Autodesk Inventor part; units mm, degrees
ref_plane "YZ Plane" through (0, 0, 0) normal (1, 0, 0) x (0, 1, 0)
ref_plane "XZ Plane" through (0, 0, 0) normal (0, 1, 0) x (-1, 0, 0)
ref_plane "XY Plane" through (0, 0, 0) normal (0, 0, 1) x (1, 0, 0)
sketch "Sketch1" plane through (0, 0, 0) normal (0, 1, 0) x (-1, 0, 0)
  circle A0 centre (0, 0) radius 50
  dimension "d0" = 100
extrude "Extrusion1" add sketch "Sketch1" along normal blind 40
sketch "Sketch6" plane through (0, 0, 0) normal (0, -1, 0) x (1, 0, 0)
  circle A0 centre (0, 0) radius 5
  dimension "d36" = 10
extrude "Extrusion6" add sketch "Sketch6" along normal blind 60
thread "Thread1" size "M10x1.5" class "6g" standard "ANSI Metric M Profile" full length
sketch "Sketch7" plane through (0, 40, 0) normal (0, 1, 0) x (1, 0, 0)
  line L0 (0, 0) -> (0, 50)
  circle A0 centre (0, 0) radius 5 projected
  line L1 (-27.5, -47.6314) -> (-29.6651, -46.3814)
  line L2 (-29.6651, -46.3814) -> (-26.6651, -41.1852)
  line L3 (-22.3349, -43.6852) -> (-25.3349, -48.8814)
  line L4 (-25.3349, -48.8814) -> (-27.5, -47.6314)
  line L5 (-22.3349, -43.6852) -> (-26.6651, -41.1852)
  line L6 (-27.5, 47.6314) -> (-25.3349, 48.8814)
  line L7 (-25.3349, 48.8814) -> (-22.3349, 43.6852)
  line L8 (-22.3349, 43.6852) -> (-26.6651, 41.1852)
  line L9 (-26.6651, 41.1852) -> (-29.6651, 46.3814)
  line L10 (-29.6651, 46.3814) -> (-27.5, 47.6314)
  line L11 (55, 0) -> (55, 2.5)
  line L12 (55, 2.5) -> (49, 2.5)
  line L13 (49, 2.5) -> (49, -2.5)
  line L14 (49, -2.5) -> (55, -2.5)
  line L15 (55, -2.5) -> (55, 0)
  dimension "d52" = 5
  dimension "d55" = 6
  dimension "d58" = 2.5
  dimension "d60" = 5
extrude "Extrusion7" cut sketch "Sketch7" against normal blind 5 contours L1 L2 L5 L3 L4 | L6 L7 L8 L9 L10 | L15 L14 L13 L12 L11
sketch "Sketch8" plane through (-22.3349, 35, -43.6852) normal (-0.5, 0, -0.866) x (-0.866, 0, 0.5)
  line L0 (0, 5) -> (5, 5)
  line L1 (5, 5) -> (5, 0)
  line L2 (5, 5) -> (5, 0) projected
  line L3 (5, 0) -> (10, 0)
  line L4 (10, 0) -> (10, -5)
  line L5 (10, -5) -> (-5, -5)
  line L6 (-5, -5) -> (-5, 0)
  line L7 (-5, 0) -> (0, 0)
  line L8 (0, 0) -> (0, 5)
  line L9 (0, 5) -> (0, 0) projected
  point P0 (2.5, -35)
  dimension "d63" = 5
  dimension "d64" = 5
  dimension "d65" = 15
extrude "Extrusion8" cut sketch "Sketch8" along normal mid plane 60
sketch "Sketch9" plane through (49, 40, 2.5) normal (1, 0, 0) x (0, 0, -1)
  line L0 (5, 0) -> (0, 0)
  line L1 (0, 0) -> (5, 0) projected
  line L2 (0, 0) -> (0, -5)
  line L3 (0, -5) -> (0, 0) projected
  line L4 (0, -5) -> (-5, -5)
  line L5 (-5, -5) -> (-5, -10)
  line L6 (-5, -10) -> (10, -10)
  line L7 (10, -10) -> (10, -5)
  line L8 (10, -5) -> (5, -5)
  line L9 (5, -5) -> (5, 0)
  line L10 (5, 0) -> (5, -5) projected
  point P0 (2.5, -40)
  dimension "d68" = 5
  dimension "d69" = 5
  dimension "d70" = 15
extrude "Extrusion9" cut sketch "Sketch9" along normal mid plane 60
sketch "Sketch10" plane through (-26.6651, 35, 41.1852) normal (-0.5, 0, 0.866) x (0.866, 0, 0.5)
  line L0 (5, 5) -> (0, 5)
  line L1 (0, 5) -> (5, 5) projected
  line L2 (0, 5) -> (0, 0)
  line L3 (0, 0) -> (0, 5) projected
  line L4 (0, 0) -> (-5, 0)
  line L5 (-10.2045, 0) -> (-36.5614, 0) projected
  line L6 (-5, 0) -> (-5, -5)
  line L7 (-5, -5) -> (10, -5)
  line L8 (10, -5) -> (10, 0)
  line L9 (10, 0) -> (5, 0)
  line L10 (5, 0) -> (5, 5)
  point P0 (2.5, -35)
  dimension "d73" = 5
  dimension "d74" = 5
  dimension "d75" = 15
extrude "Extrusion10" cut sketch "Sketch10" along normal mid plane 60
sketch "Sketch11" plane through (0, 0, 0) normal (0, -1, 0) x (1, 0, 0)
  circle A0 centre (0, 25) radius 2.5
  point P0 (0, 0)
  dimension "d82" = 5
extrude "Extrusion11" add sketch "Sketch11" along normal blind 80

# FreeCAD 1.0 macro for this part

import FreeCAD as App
import Part
import Sketcher
Q = App.Units.Quantity

doc = App.newDocument("Part")
params = doc.addObject("Spreadsheet::Sheet", "Params")
for row, (alias, value) in enumerate([
    ("sketch1_diameter", "100 mm"),
    ("pad1_length", "40 mm"),
    ("sketch2_diameter", "10 mm"),
    ("pad2_length", "60 mm"),
    ("sketch3_width", "6 mm"),
    ("sketch3_height", "5 mm"),
    ("sketch3_length", "5 mm"),
    ("sketch3_length2", "6 mm"),
    ("pocket1_length", "5 mm"),
    ("sketch4_width", "5 mm"),
    ("pocket2_length", "60 mm"),
    ("sketch5_width", "5 mm"),
    ("pocket3_length", "60 mm"),
    ("sketch6_width", "5 mm"),
    ("pocket4_length", "60 mm"),
    ("sketch7_diameter", "5 mm"),
    ("pad3_length", "80 mm"),
], start=1):
    params.set(f"A{row}", alias)
    params.set(f"B{row}", "=" + value)
    params.setAlias(f"B{row}", alias)

body = doc.addObject("PartDesign::Body", "Body")

sketch1 = body.newObject("Sketcher::SketchObject", "Sketch")
sketch1.AttachmentSupport = (doc.getObject("XZ_Plane"), [""])
sketch1.MapMode = "FlatFace"
sketch1.addGeometry(Part.Circle(App.Vector(0, 0, 0), App.Vector(0, 0, 1), 50), False)
sketch1.addConstraint(Sketcher.Constraint("Coincident", 0, 3, -1, 1))
sketch1.addConstraint(Sketcher.Constraint("Diameter", 0, Q("100 mm")))
sketch1.setExpression("Constraints[1]", "Params.sketch1_diameter")
pad1 = body.newObject("PartDesign::Pad", "Pad")
pad1.Profile = sketch1
pad1.setExpression("Length", "Params.pad1_length")
pad1.Reversed = True

sketch2 = body.newObject("Sketcher::SketchObject", "Sketch001")
sketch2.AttachmentSupport = (doc.getObject("XZ_Plane"), [""])
sketch2.MapMode = "FlatFace"
sketch2.addGeometry(Part.Circle(App.Vector(0, 0, 0), App.Vector(0, 0, 1), 5), False)
sketch2.addConstraint(Sketcher.Constraint("Coincident", 0, 3, -1, 1))
sketch2.addConstraint(Sketcher.Constraint("Diameter", 0, Q("10 mm")))
sketch2.setExpression("Constraints[1]", "Params.sketch2_diameter")
pad2 = body.newObject("PartDesign::Pad", "Pad001")
pad2.Profile = sketch2
pad2.setExpression("Length", "Params.pad2_length")

sketch3 = body.newObject("Sketcher::SketchObject", "Sketch002")
sketch3.AttachmentSupport = (doc.getObject("XZ_Plane"), [""])
sketch3.MapMode = "FlatFace"
sketch3.AttachmentOffset = App.Placement(App.Vector(0, 0, -40), App.Rotation())
sketch3.addGeometry(Part.LineSegment(App.Vector(-30, 46, 0), App.Vector(-25, 49, 0)), False)
sketch3.addGeometry(Part.LineSegment(App.Vector(-25, 49, 0), App.Vector(-22, 44, 0)), False)
sketch3.addGeometry(Part.LineSegment(App.Vector(-22, 44, 0), App.Vector(-27, 41, 0)), False)
sketch3.addGeometry(Part.LineSegment(App.Vector(-27, 41, 0), App.Vector(-30, 46, 0)), False)
sketch3.addGeometry(Part.LineSegment(App.Vector(-25, -49, 0), App.Vector(-30, -46, 0)), False)
sketch3.addGeometry(Part.LineSegment(App.Vector(-30, -46, 0), App.Vector(-27, -41, 0)), False)
sketch3.addGeometry(Part.LineSegment(App.Vector(-27, -41, 0), App.Vector(-22, -44, 0)), False)
sketch3.addGeometry(Part.LineSegment(App.Vector(-22, -44, 0), App.Vector(-25, -49, 0)), False)
sketch3.addGeometry(Part.LineSegment(App.Vector(55, 2, 0), App.Vector(55, -2, 0)), False)
sketch3.addGeometry(Part.LineSegment(App.Vector(55, -2, 0), App.Vector(49, -2, 0)), False)
sketch3.addGeometry(Part.LineSegment(App.Vector(49, -2, 0), App.Vector(49, 2, 0)), False)
sketch3.addGeometry(Part.LineSegment(App.Vector(49, 2, 0), App.Vector(55, 2, 0)), False)
sketch3.addConstraint(Sketcher.Constraint("Coincident", 0, 2, 1, 1))
sketch3.addConstraint(Sketcher.Constraint("Coincident", 1, 2, 2, 1))
sketch3.addConstraint(Sketcher.Constraint("Coincident", 2, 2, 3, 1))
sketch3.addConstraint(Sketcher.Constraint("Coincident", 3, 2, 0, 1))
sketch3.addConstraint(Sketcher.Constraint("Coincident", 4, 2, 5, 1))
sketch3.addConstraint(Sketcher.Constraint("Coincident", 5, 2, 6, 1))
sketch3.addConstraint(Sketcher.Constraint("Coincident", 6, 2, 7, 1))
sketch3.addConstraint(Sketcher.Constraint("Coincident", 7, 2, 4, 1))
sketch3.addConstraint(Sketcher.Constraint("Coincident", 8, 2, 9, 1))
sketch3.addConstraint(Sketcher.Constraint("Coincident", 9, 2, 10, 1))
sketch3.addConstraint(Sketcher.Constraint("Coincident", 10, 2, 11, 1))
sketch3.addConstraint(Sketcher.Constraint("Coincident", 11, 2, 8, 1))
sketch3.addConstraint(Sketcher.Constraint("Vertical", 8))
sketch3.addConstraint(Sketcher.Constraint("Horizontal", 9))
sketch3.addConstraint(Sketcher.Constraint("Vertical", 10))
sketch3.addConstraint(Sketcher.Constraint("Horizontal", 11))
sketch3.addConstraint(Sketcher.Constraint("Symmetric", 3, 2, 4, 2, -1))
sketch3.addConstraint(Sketcher.Constraint("Symmetric", 2, 2, 5, 2, -1))
sketch3.addConstraint(Sketcher.Constraint("Symmetric", 1, 2, 6, 2, -1))
sketch3.addConstraint(Sketcher.Constraint("Symmetric", 0, 2, 7, 2, -1))
sketch3.addConstraint(Sketcher.Constraint("Perpendicular", 0, 1))
sketch3.addConstraint(Sketcher.Constraint("Perpendicular", 1, 2))
sketch3.addConstraint(Sketcher.Constraint("Perpendicular", 2, 3))
sketch3.addConstraint(Sketcher.Constraint("DistanceX", 9, 2, 9, 1, Q("6 mm")))
sketch3.addConstraint(Sketcher.Constraint("DistanceY", 8, 2, 8, 1, Q("5 mm")))
sketch3.addConstraint(Sketcher.Constraint("Distance", 0, Q("5 mm")))
sketch3.addConstraint(Sketcher.Constraint("Distance", 1, Q("6 mm")))
sketch3.addConstraint(Sketcher.Constraint("DistanceY", 8, 2, -1, 1, Q("2.5 mm")))
sketch3.addConstraint(Sketcher.Constraint("DistanceY", 2, 2, 1, 2, Q("2.5 mm")))
sketch3.addConstraint(Sketcher.Constraint("DistanceX", -1, 1, 8, 2, Q("55 mm")))
sketch3.addConstraint(Sketcher.Constraint("DistanceX", 0, 2, -1, 1, Q("25.335 mm")))
sketch3.addConstraint(Sketcher.Constraint("DistanceY", -1, 1, 0, 2, Q("48.8814 mm")))
sketch3.setExpression("Constraints[23]", "Params.sketch3_width")
sketch3.setExpression("Constraints[24]", "Params.sketch3_height")
sketch3.setExpression("Constraints[25]", "Params.sketch3_length")
sketch3.setExpression("Constraints[26]", "Params.sketch3_length2")
pocket1 = body.newObject("PartDesign::Pocket", "Pocket")
pocket1.Profile = sketch3
pocket1.setExpression("Length", "Params.pocket1_length")
pocket1.Reversed = True

sketch4 = body.newObject("Sketcher::SketchObject", "Sketch003")
sketch4.Placement = App.Placement(App.Vector(-22.3349, 35, -43.6852), App.Rotation(App.Vector(-0.866025404, 0, 0.5), App.Vector(0, 1, 0), App.Vector(-0.5, 0, -0.866025404), "ZXY"))
sketch4.addGeometry(Part.LineSegment(App.Vector(5, 5, 0), App.Vector(0, 5, 0)), False)
sketch4.addGeometry(Part.LineSegment(App.Vector(0, 5, 0), App.Vector(0, 0, 0)), False)
sketch4.addGeometry(Part.LineSegment(App.Vector(0, 0, 0), App.Vector(-5, 0, 0)), False)
sketch4.addGeometry(Part.LineSegment(App.Vector(-5, 0, 0), App.Vector(-5, -5, 0)), False)
sketch4.addGeometry(Part.LineSegment(App.Vector(-5, -5, 0), App.Vector(10, -5, 0)), False)
sketch4.addGeometry(Part.LineSegment(App.Vector(10, -5, 0), App.Vector(10, 0, 0)), False)
sketch4.addGeometry(Part.LineSegment(App.Vector(10, 0, 0), App.Vector(5, 0, 0)), False)
sketch4.addGeometry(Part.LineSegment(App.Vector(5, 0, 0), App.Vector(5, 5, 0)), False)
sketch4.addConstraint(Sketcher.Constraint("Coincident", 0, 2, 1, 1))
sketch4.addConstraint(Sketcher.Constraint("Coincident", 1, 2, 2, 1))
sketch4.addConstraint(Sketcher.Constraint("Coincident", 2, 2, 3, 1))
sketch4.addConstraint(Sketcher.Constraint("Coincident", 3, 2, 4, 1))
sketch4.addConstraint(Sketcher.Constraint("Coincident", 4, 2, 5, 1))
sketch4.addConstraint(Sketcher.Constraint("Coincident", 5, 2, 6, 1))
sketch4.addConstraint(Sketcher.Constraint("Coincident", 6, 2, 7, 1))
sketch4.addConstraint(Sketcher.Constraint("Coincident", 7, 2, 0, 1))
sketch4.addConstraint(Sketcher.Constraint("Horizontal", 0))
sketch4.addConstraint(Sketcher.Constraint("Vertical", 1))
sketch4.addConstraint(Sketcher.Constraint("Horizontal", 2))
sketch4.addConstraint(Sketcher.Constraint("Vertical", 3))
sketch4.addConstraint(Sketcher.Constraint("Horizontal", 4))
sketch4.addConstraint(Sketcher.Constraint("Vertical", 5))
sketch4.addConstraint(Sketcher.Constraint("Horizontal", 6))
sketch4.addConstraint(Sketcher.Constraint("Vertical", 7))
sketch4.addConstraint(Sketcher.Constraint("Coincident", 1, 2, -1, 1))
sketch4.addConstraint(Sketcher.Constraint("Symmetric", 2, 2, 6, 2, -1, 1))
sketch4.addConstraint(Sketcher.Constraint("Equal", 2, 6))
sketch4.addConstraint(Sketcher.Constraint("Equal", 6, 1))
sketch4.addConstraint(Sketcher.Constraint("Equal", 1, 3))
sketch4.addConstraint(Sketcher.Constraint("DistanceX", 0, 2, 0, 1, Q("5 mm")))
sketch4.setExpression("Constraints[21]", "Params.sketch4_width")
pocket2 = body.newObject("PartDesign::Pocket", "Pocket001")
pocket2.Profile = sketch4
pocket2.setExpression("Length", "Params.pocket2_length")
pocket2.Midplane = True

sketch5 = body.newObject("Sketcher::SketchObject", "Sketch004")
sketch5.AttachmentSupport = (doc.getObject("YZ_Plane"), [""])
sketch5.MapMode = "FlatFace"
sketch5.AttachmentOffset = App.Placement(App.Vector(0, 0, 49), App.Rotation())
sketch5.addGeometry(Part.LineSegment(App.Vector(35, -2, 0), App.Vector(40, -2, 0)), False)
sketch5.addGeometry(Part.LineSegment(App.Vector(40, -2, 0), App.Vector(40, 2, 0)), False)
sketch5.addGeometry(Part.LineSegment(App.Vector(40, 2, 0), App.Vector(35, 2, 0)), False)
sketch5.addGeometry(Part.LineSegment(App.Vector(35, 2, 0), App.Vector(35, 8, 0)), False)
sketch5.addGeometry(Part.LineSegment(App.Vector(35, 8, 0), App.Vector(30, 8, 0)), False)
sketch5.addGeometry(Part.LineSegment(App.Vector(30, 8, 0), App.Vector(30, -8, 0)), False)
sketch5.addGeometry(Part.LineSegment(App.Vector(30, -8, 0), App.Vector(35, -8, 0)), False)
sketch5.addGeometry(Part.LineSegment(App.Vector(35, -8, 0), App.Vector(35, -2, 0)), False)
sketch5.addConstraint(Sketcher.Constraint("Coincident", 0, 2, 1, 1))
sketch5.addConstraint(Sketcher.Constraint("Coincident", 1, 2, 2, 1))
sketch5.addConstraint(Sketcher.Constraint("Coincident", 2, 2, 3, 1))
sketch5.addConstraint(Sketcher.Constraint("Coincident", 3, 2, 4, 1))
sketch5.addConstraint(Sketcher.Constraint("Coincident", 4, 2, 5, 1))
sketch5.addConstraint(Sketcher.Constraint("Coincident", 5, 2, 6, 1))
sketch5.addConstraint(Sketcher.Constraint("Coincident", 6, 2, 7, 1))
sketch5.addConstraint(Sketcher.Constraint("Coincident", 7, 2, 0, 1))
sketch5.addConstraint(Sketcher.Constraint("Horizontal", 0))
sketch5.addConstraint(Sketcher.Constraint("Vertical", 1))
sketch5.addConstraint(Sketcher.Constraint("Horizontal", 2))
sketch5.addConstraint(Sketcher.Constraint("Vertical", 3))
sketch5.addConstraint(Sketcher.Constraint("Horizontal", 4))
sketch5.addConstraint(Sketcher.Constraint("Vertical", 5))
sketch5.addConstraint(Sketcher.Constraint("Horizontal", 6))
sketch5.addConstraint(Sketcher.Constraint("Vertical", 7))
sketch5.addConstraint(Sketcher.Constraint("Symmetric", 3, 2, 6, 2, -1))
sketch5.addConstraint(Sketcher.Constraint("Equal", 2, 4))
sketch5.addConstraint(Sketcher.Constraint("Equal", 6, 1))
sketch5.addConstraint(Sketcher.Constraint("Equal", 1, 3))
sketch5.addConstraint(Sketcher.Constraint("Equal", 3, 7))
sketch5.addConstraint(Sketcher.Constraint("DistanceX", 0, 1, 0, 2, Q("5 mm")))
sketch5.addConstraint(Sketcher.Constraint("DistanceX", -1, 1, 0, 2, Q("40 mm")))
sketch5.setExpression("Constraints[21]", "Params.sketch5_width")
pocket3 = body.newObject("PartDesign::Pocket", "Pocket002")
pocket3.Profile = sketch5
pocket3.setExpression("Length", "Params.pocket3_length")
pocket3.Midplane = True

sketch6 = body.newObject("Sketcher::SketchObject", "Sketch005")
sketch6.Placement = App.Placement(App.Vector(-26.6651, 35, 41.1852), App.Rotation(App.Vector(0.866025404, 0, 0.5), App.Vector(0, 1, 0), App.Vector(-0.5, 0, 0.866025404), "ZXY"))
sketch6.addGeometry(Part.LineSegment(App.Vector(5, 0, 0), App.Vector(5, 5, 0)), False)
sketch6.addGeometry(Part.LineSegment(App.Vector(5, 5, 0), App.Vector(0, 5, 0)), False)
sketch6.addGeometry(Part.LineSegment(App.Vector(0, 5, 0), App.Vector(0, 0, 0)), False)
sketch6.addGeometry(Part.LineSegment(App.Vector(0, 0, 0), App.Vector(-5, 0, 0)), False)
sketch6.addGeometry(Part.LineSegment(App.Vector(-5, 0, 0), App.Vector(-5, -5, 0)), False)
sketch6.addGeometry(Part.LineSegment(App.Vector(-5, -5, 0), App.Vector(10, -5, 0)), False)
sketch6.addGeometry(Part.LineSegment(App.Vector(10, -5, 0), App.Vector(10, 0, 0)), False)
sketch6.addGeometry(Part.LineSegment(App.Vector(10, 0, 0), App.Vector(5, 0, 0)), False)
sketch6.addConstraint(Sketcher.Constraint("Coincident", 0, 2, 1, 1))
sketch6.addConstraint(Sketcher.Constraint("Coincident", 1, 2, 2, 1))
sketch6.addConstraint(Sketcher.Constraint("Coincident", 2, 2, 3, 1))
sketch6.addConstraint(Sketcher.Constraint("Coincident", 3, 2, 4, 1))
sketch6.addConstraint(Sketcher.Constraint("Coincident", 4, 2, 5, 1))
sketch6.addConstraint(Sketcher.Constraint("Coincident", 5, 2, 6, 1))
sketch6.addConstraint(Sketcher.Constraint("Coincident", 6, 2, 7, 1))
sketch6.addConstraint(Sketcher.Constraint("Coincident", 7, 2, 0, 1))
sketch6.addConstraint(Sketcher.Constraint("Vertical", 0))
sketch6.addConstraint(Sketcher.Constraint("Horizontal", 1))
sketch6.addConstraint(Sketcher.Constraint("Vertical", 2))
sketch6.addConstraint(Sketcher.Constraint("Horizontal", 3))
sketch6.addConstraint(Sketcher.Constraint("Vertical", 4))
sketch6.addConstraint(Sketcher.Constraint("Horizontal", 5))
sketch6.addConstraint(Sketcher.Constraint("Vertical", 6))
sketch6.addConstraint(Sketcher.Constraint("Horizontal", 7))
sketch6.addConstraint(Sketcher.Constraint("Coincident", 2, 2, -1, 1))
sketch6.addConstraint(Sketcher.Constraint("Symmetric", 0, 2, 4, 2, -1, 1))
sketch6.addConstraint(Sketcher.Constraint("PointOnObject", 6, 2, -1))
sketch6.addConstraint(Sketcher.Constraint("Equal", 3, 7))
sketch6.addConstraint(Sketcher.Constraint("Equal", 7, 0))
sketch6.addConstraint(Sketcher.Constraint("DistanceX", 1, 2, 1, 1, Q("5 mm")))
sketch6.setExpression("Constraints[21]", "Params.sketch6_width")
pocket4 = body.newObject("PartDesign::Pocket", "Pocket003")
pocket4.Profile = sketch6
pocket4.setExpression("Length", "Params.pocket4_length")
pocket4.Midplane = True

sketch7 = body.newObject("Sketcher::SketchObject", "Sketch006")
sketch7.AttachmentSupport = (doc.getObject("XZ_Plane"), [""])
sketch7.MapMode = "FlatFace"
sketch7.addGeometry(Part.Circle(App.Vector(0, 25, 0), App.Vector(0, 0, 1), 2.5), False)
sketch7.addConstraint(Sketcher.Constraint("PointOnObject", 0, 3, -2))
sketch7.addConstraint(Sketcher.Constraint("Diameter", 0, Q("5 mm")))
sketch7.addConstraint(Sketcher.Constraint("DistanceY", -1, 1, 0, 3, Q("25 mm")))
sketch7.setExpression("Constraints[1]", "Params.sketch7_diameter")
pad3 = body.newObject("PartDesign::Pad", "Pad002")
pad3.Profile = sketch7
pad3.setExpression("Length", "Params.pad3_length")

doc.recompute()
